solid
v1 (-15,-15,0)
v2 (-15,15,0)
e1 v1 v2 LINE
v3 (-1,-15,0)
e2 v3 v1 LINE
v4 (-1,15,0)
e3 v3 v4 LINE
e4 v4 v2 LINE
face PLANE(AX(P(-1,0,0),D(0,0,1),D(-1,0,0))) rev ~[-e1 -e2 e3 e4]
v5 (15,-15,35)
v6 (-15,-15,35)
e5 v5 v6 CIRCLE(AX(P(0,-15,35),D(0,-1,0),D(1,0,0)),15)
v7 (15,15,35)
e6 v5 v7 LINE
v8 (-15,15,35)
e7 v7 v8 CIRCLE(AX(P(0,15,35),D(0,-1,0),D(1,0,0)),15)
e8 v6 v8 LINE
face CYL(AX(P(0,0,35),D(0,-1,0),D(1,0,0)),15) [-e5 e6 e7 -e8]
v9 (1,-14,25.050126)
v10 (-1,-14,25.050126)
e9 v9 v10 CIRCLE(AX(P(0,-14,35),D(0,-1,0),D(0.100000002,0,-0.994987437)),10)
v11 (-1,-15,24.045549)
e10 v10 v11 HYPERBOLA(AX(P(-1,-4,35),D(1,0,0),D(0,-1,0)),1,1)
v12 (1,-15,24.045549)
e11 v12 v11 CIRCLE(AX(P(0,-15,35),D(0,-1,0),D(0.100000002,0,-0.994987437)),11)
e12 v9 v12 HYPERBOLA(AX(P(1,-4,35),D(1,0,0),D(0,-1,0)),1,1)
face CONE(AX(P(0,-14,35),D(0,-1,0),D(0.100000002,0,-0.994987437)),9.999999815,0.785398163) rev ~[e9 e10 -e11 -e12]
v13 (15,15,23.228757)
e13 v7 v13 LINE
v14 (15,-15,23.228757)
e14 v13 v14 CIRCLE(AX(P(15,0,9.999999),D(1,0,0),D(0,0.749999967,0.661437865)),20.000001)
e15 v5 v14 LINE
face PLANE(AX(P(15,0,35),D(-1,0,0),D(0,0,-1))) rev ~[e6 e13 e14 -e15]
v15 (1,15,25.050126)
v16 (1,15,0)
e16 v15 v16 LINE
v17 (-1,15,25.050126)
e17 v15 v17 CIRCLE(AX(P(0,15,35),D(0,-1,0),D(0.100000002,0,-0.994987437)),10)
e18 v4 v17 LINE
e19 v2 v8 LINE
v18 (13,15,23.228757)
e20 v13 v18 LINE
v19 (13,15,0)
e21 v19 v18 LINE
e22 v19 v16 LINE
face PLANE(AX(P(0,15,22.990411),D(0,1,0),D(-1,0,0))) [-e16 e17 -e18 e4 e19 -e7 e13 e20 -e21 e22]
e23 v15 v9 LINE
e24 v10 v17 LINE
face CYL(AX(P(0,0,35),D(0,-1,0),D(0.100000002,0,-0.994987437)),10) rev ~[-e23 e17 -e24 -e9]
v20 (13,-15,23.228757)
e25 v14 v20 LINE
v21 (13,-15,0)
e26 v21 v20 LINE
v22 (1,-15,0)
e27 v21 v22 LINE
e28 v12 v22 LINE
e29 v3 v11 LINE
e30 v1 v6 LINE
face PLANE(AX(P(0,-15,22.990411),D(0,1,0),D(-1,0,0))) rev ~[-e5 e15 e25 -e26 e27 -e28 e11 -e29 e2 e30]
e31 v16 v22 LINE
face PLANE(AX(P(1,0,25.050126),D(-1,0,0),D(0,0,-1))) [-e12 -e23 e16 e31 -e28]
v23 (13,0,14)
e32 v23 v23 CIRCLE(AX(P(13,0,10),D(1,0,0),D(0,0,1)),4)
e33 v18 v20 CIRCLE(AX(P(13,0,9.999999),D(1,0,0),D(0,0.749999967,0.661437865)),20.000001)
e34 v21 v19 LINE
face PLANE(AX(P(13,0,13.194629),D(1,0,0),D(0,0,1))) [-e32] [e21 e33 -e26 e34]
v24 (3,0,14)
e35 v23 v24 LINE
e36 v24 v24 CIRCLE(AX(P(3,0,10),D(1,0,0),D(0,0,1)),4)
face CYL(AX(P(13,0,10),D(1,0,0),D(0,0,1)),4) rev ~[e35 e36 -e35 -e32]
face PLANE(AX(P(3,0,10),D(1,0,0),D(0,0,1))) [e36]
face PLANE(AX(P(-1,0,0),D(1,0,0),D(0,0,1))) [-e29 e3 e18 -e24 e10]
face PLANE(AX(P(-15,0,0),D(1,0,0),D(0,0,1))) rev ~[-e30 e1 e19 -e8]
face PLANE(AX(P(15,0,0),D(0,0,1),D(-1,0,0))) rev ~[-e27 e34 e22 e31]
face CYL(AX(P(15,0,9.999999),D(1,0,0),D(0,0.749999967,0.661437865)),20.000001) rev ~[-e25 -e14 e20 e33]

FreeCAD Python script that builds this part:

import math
import FreeCAD as App
import Part
import Sketcher


def edges_at(feature, points):
    """Names of the edges that pass closest to the given points."""
    edges = feature.Shape.Edges
    near = lambda p: min(range(len(edges)), key=lambda i: edges[i].distToShape(Part.Vertex(*p))[0])
    return sorted({f"Edge{near(p) + 1}" for p in points})

doc = App.newDocument("Part")
body = doc.addObject("PartDesign::Body", "Body")

sketch1 = doc.addObject("Sketcher::SketchObject", "Sketch")
body.addObject(sketch1)
sketch1.AttachmentSupport = (doc.XZ_Plane, [""])
sketch1.MapMode = "FlatFace"
sketch1.addGeometry([
    Part.ArcOfCircle(Part.Circle(App.Vector(0, 35, 0), App.Vector(0, 0, 1), 10), math.radians(-84), math.radians(264)),
    Part.LineSegment(App.Vector(1, 25.1, 0), App.Vector(1, 0, 0)),
    Part.LineSegment(App.Vector(1, 0, 0), App.Vector(15, 0, 0)),
    Part.LineSegment(App.Vector(15, 0, 0), App.Vector(15, 35, 0)),
    Part.ArcOfCircle(Part.Circle(App.Vector(0, 35, 0), App.Vector(0, 0, 1), 15), math.radians(0), math.radians(180)),
    Part.LineSegment(App.Vector(-15, 35, 0), App.Vector(-15, 0, 0)),
    Part.LineSegment(App.Vector(-15, 0, 0), App.Vector(-1, 0, 0)),
    Part.LineSegment(App.Vector(-1, 0, 0), App.Vector(-1, 25.1, 0)),
], False)
sketch1.addConstraint([
    Sketcher.Constraint("Coincident", 0, 1, 1, 1),
    Sketcher.Constraint("Coincident", 1, 2, 2, 1),
    Sketcher.Constraint("Coincident", 2, 2, 3, 1),
    Sketcher.Constraint("Tangent", 3, 2, 4, 1),
    Sketcher.Constraint("Tangent", 4, 2, 5, 1),
    Sketcher.Constraint("Coincident", 5, 2, 6, 1),
    Sketcher.Constraint("Coincident", 6, 2, 7, 1),
    Sketcher.Constraint("Coincident", 7, 2, 0, 2),
    Sketcher.Constraint("Vertical", 1),
    Sketcher.Constraint("Horizontal", 2),
    Sketcher.Constraint("Vertical", 3),
    Sketcher.Constraint("Vertical", 5),
    Sketcher.Constraint("Horizontal", 6),
    Sketcher.Constraint("Vertical", 7),
    Sketcher.Constraint("Coincident", 4, 3, 0, 3),
    Sketcher.Constraint("Symmetric", 2, 2, 5, 2, -1, 1),
    Sketcher.Constraint("Symmetric", 1, 2, 6, 2, -2),
    Sketcher.Constraint("Radius", 0, 10.0),
    Sketcher.Constraint("Radius", 4, 15.0),
    Sketcher.Constraint("DistanceX", 2, 1, 2, 2, 14.0),
    Sketcher.Constraint("DistanceY", 3, 1, 3, 2, 35.0),
])
pad1 = doc.addObject("PartDesign::Pad", "Pad")
body.addObject(pad1)
pad1.Profile = sketch1
pad1.Length = 30
pad1.Midplane = True

sketch2 = doc.addObject("Sketcher::SketchObject", "Sketch001")
body.addObject(sketch2)
sketch2.AttachmentSupport = (doc.YZ_Plane, [""])
sketch2.MapMode = "FlatFace"
sketch2.AttachmentOffset = App.Placement(App.Vector(0, 0, 15), App.Rotation())
sketch2.addGeometry([
    Part.ArcOfCircle(Part.Circle(App.Vector(0, 10, 0), App.Vector(0, 0, 1), 20), math.radians(41), math.radians(139)),
    Part.LineSegment(App.Vector(-15, 23, 0), App.Vector(-15, 0, 0)),
    Part.LineSegment(App.Vector(-15, 0, 0), App.Vector(15, 0, 0)),
    Part.LineSegment(App.Vector(15, 0, 0), App.Vector(15, 23, 0)),
], False)
sketch2.addConstraint([
    Sketcher.Constraint("Coincident", 0, 2, 1, 1),
    Sketcher.Constraint("Coincident", 1, 2, 2, 1),
    Sketcher.Constraint("Coincident", 2, 2, 3, 1),
    Sketcher.Constraint("Coincident", 3, 2, 0, 1),
    Sketcher.Constraint("Vertical", 1),
    Sketcher.Constraint("Horizontal", 2),
    Sketcher.Constraint("Vertical", 3),
    Sketcher.Constraint("Symmetric", 1, 2, 2, 2, -1, 1),
    Sketcher.Constraint("PointOnObject", 0, 3, -2),
    Sketcher.Constraint("Radius", 0, 20.000001),
    Sketcher.Constraint("DistanceX", 2, 1, 2, 2, 30.0),
    Sketcher.Constraint("DistanceY", -1, 1, 0, 3, 9.999999),
])
pocket1 = doc.addObject("PartDesign::Pocket", "Pocket")
body.addObject(pocket1)
pocket1.Profile = sketch2
pocket1.Length = 2

sketch3 = doc.addObject("Sketcher::SketchObject", "Sketch002")
body.addObject(sketch3)
sketch3.AttachmentSupport = (doc.YZ_Plane, [""])
sketch3.MapMode = "FlatFace"
sketch3.AttachmentOffset = App.Placement(App.Vector(0, 0, 13), App.Rotation())
sketch3.addGeometry(Part.Circle(App.Vector(0, 10, 0), App.Vector(0, 0, 1), 4), False)
sketch3.addConstraint([
    Sketcher.Constraint("PointOnObject", 0, 3, -2),
    Sketcher.Constraint("Diameter", 0, 8.0),
    Sketcher.Constraint("DistanceY", -1, 1, 0, 3, 10.0),
])
pocket2 = doc.addObject("PartDesign::Pocket", "Pocket001")
body.addObject(pocket2)
pocket2.Profile = sketch3
pocket2.Length = 10
doc.recompute()

chamfer = doc.addObject("PartDesign::Chamfer", "Chamfer")
body.addObject(chamfer)
chamfer.Base = (pocket2, edges_at(pocket2, [(0, -15, 45)]))
chamfer.Size = 1

doc.recompute()
